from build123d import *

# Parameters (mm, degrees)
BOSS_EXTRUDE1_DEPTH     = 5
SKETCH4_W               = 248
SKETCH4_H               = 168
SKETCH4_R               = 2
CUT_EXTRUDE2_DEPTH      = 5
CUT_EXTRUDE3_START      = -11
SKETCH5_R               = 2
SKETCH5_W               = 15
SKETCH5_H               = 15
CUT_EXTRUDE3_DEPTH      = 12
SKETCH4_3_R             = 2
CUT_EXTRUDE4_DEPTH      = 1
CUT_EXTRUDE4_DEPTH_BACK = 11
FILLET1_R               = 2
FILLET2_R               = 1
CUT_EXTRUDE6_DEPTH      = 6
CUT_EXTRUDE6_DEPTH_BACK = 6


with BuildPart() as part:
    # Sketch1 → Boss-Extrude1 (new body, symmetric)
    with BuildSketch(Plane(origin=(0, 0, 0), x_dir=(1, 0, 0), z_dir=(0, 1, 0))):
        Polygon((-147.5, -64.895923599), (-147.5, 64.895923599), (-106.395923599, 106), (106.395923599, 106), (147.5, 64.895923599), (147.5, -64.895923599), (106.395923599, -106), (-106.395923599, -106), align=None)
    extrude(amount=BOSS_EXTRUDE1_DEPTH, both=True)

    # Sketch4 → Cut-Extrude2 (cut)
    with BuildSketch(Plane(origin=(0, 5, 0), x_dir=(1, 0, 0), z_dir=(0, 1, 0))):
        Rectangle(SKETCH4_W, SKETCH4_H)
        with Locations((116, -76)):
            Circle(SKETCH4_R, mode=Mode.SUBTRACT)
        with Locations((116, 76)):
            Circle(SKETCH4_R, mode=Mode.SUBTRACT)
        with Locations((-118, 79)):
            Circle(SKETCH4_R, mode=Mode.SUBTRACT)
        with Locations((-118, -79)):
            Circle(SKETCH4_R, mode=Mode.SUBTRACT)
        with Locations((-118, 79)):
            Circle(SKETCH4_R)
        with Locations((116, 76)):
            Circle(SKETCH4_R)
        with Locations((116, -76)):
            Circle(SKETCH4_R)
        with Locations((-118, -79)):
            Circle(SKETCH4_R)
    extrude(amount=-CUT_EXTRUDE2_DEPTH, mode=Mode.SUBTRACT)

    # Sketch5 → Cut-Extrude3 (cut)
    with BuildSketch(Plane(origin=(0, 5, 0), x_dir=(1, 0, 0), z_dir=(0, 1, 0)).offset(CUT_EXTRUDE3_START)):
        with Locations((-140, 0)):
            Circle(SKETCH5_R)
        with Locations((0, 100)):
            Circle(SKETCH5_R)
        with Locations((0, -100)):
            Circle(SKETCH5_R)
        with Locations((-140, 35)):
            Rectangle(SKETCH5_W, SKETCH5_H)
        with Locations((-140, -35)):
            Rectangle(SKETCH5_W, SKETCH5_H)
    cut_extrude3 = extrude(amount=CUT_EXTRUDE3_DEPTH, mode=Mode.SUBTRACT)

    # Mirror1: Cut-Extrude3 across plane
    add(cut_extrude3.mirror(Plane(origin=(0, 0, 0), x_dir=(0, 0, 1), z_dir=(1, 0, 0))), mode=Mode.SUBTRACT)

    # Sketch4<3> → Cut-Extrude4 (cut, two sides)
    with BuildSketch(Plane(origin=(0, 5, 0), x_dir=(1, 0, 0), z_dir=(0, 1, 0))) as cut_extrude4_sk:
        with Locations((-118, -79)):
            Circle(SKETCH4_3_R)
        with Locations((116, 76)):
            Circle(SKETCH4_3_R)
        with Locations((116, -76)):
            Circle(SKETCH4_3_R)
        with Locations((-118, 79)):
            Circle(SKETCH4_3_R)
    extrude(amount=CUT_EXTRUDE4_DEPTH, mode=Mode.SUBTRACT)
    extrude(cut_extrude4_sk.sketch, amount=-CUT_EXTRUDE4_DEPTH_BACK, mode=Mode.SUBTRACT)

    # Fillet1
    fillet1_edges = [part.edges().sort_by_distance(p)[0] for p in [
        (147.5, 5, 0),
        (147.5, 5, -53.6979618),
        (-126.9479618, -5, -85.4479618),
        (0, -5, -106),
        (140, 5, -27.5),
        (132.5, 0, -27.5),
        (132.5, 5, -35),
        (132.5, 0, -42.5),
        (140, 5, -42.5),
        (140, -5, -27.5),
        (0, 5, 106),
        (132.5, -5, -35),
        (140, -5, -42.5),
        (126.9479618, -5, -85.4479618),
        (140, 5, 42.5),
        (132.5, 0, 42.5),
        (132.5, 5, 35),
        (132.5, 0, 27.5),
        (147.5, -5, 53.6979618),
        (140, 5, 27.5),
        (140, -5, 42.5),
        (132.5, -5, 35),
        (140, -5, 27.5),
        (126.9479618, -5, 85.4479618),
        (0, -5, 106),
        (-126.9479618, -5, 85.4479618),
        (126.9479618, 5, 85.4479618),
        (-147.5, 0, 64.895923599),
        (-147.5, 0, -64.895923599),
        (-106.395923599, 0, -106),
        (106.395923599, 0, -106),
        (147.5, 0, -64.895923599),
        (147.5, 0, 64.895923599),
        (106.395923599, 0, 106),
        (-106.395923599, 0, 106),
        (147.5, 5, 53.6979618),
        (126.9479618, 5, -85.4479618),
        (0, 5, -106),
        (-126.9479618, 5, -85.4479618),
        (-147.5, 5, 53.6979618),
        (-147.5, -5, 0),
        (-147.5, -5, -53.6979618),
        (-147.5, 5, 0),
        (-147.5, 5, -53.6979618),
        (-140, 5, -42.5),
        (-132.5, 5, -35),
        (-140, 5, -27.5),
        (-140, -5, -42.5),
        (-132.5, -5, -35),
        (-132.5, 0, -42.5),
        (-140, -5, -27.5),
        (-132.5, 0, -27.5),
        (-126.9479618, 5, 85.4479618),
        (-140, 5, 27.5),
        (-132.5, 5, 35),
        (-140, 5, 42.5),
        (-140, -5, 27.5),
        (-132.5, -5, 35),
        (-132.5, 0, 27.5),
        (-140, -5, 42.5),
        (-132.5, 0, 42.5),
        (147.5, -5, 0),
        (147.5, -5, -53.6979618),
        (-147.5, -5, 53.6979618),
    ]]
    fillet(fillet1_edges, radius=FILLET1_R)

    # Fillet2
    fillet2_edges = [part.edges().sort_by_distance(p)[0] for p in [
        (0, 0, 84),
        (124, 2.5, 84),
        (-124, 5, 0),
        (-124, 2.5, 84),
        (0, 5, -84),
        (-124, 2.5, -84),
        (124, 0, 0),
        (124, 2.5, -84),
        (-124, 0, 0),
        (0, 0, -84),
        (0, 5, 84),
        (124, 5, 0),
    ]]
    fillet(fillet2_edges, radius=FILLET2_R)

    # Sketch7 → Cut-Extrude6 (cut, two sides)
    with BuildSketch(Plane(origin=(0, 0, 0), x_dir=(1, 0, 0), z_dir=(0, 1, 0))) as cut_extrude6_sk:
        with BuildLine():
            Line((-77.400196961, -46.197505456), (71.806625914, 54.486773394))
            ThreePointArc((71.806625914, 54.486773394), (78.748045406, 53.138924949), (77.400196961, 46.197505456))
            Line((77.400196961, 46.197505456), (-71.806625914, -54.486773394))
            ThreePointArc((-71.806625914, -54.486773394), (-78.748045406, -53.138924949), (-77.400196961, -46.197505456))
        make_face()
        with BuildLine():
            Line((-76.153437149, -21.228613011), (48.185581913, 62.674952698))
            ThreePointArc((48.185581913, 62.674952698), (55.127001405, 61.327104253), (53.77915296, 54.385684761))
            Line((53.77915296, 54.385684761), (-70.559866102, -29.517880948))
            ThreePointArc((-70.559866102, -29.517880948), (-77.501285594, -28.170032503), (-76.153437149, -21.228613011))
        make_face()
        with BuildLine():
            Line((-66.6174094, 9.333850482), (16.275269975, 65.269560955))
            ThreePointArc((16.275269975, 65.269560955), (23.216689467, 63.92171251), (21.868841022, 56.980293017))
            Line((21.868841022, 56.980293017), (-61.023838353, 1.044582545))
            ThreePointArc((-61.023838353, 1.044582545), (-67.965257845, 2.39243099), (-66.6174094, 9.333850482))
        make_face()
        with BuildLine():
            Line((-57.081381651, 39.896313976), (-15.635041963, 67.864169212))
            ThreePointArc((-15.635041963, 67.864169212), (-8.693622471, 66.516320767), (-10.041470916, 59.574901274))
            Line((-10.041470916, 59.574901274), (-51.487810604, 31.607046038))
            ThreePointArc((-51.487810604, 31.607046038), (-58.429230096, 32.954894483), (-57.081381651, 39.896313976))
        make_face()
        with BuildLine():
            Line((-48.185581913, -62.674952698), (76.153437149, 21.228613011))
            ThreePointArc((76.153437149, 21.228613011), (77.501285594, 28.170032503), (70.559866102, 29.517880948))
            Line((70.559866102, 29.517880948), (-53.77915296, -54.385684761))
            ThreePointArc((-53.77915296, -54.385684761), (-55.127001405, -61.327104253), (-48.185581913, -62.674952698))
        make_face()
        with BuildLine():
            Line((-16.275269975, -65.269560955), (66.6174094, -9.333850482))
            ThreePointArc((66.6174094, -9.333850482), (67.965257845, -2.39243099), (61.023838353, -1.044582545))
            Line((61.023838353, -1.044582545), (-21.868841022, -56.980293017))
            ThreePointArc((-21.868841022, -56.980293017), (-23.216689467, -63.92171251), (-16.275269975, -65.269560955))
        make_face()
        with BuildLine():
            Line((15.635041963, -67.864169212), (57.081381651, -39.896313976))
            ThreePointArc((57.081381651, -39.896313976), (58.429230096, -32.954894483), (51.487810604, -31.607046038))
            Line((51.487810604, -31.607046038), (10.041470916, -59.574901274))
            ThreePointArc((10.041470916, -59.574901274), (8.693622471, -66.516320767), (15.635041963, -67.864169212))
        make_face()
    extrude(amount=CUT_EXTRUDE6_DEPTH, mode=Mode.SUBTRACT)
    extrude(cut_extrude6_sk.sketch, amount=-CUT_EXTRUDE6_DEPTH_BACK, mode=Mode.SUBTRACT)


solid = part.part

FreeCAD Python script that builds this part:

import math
import FreeCAD as App
import Part
import Sketcher

V = App.Vector
Q = App.Units.Quantity


def edges_at(feature, points):
    """Names of the edges that pass closest to the given points."""
    edges = feature.Shape.Edges
    near = lambda p: min(range(len(edges)), key=lambda i: edges[i].distToShape(Part.Vertex(*p))[0])
    return sorted({f"Edge{near(p) + 1}" for p in points})

doc = App.newDocument("Part")
body = doc.addObject("PartDesign::Body", "Body")

sketch1 = doc.addObject("Sketcher::SketchObject", "Sketch")
body.addObject(sketch1)
sketch1.AttachmentSupport = (doc.XZ_Plane, [""])
sketch1.MapMode = "FlatFace"
sketch1.addGeometry([
    Part.LineSegment(V(-148, -65, 0), V(-148, 65, 0)),
    Part.LineSegment(V(-148, 65, 0), V(-106, 106, 0)),
    Part.LineSegment(V(-106, 106, 0), V(106, 106, 0)),
    Part.LineSegment(V(106, 106, 0), V(148, 65, 0)),
    Part.LineSegment(V(148, 65, 0), V(148, -65, 0)),
    Part.LineSegment(V(148, -65, 0), V(106, -106, 0)),
    Part.LineSegment(V(106, -106, 0), V(-106, -106, 0)),
    Part.LineSegment(V(-106, -106, 0), V(-148, -65, 0)),
], False)
sketch1.addConstraint([
    Sketcher.Constraint("Coincident", 0, 2, 1, 1),
    Sketcher.Constraint("Coincident", 1, 2, 2, 1),
    Sketcher.Constraint("Coincident", 2, 2, 3, 1),
    Sketcher.Constraint("Coincident", 3, 2, 4, 1),
    Sketcher.Constraint("Coincident", 4, 2, 5, 1),
    Sketcher.Constraint("Coincident", 5, 2, 6, 1),
    Sketcher.Constraint("Coincident", 6, 2, 7, 1),
    Sketcher.Constraint("Coincident", 7, 2, 0, 1),
    Sketcher.Constraint("Vertical", 0),
    Sketcher.Constraint("Horizontal", 2),
    Sketcher.Constraint("Vertical", 4),
    Sketcher.Constraint("Horizontal", 6),
    Sketcher.Constraint("Symmetric", 0, 2, 4, 2, -1, 1),
    Sketcher.Constraint("Symmetric", 1, 2, 5, 2, -1, 1),
    Sketcher.Constraint("Perpendicular", 1, 3),
    Sketcher.Constraint("Perpendicular", 5, 7),
    Sketcher.Constraint("Horizontal", 0, 2, 3, 2),
    Sketcher.Constraint("Horizontal", 4, 2, 7, 2),
    Sketcher.Constraint("Vertical", 2, 2, 5, 2),
    Sketcher.Constraint("DistanceY", -1, 1, 1, 2, Q("106 mm")),
    Sketcher.Constraint("DistanceX", 0, 2, 3, 2, Q("295 mm")),
    Sketcher.Constraint("DistanceX", 2, 1, 2, 2, Q("212.791847 mm")),
])
pad1 = doc.addObject("PartDesign::Pad", "Pad")
body.addObject(pad1)
pad1.Profile = sketch1
pad1.Length = 10
pad1.Midplane = True

sketch2 = doc.addObject("Sketcher::SketchObject", "Sketch001")
body.addObject(sketch2)
sketch2.AttachmentSupport = (doc.XZ_Plane, [""])
sketch2.MapMode = "FlatFace"
sketch2.AttachmentOffset = App.Placement(V(0, 0, -5), App.Rotation())
sketch2.addGeometry([
    Part.LineSegment(V(-124, -84, 0), V(-124, 84, 0)),
    Part.LineSegment(V(-124, 84, 0), V(124, 84, 0)),
    Part.LineSegment(V(124, 84, 0), V(124, -84, 0)),
    Part.LineSegment(V(124, -84, 0), V(-124, -84, 0)),
], False)
sketch2.addConstraint([
    Sketcher.Constraint("Coincident", 0, 2, 1, 1),
    Sketcher.Constraint("Coincident", 1, 2, 2, 1),
    Sketcher.Constraint("Coincident", 2, 2, 3, 1),
    Sketcher.Constraint("Coincident", 3, 2, 0, 1),
    Sketcher.Constraint("Vertical", 0),
    Sketcher.Constraint("Horizontal", 1),
    Sketcher.Constraint("Vertical", 2),
    Sketcher.Constraint("Horizontal", 3),
    Sketcher.Constraint("Symmetric", 0, 2, 2, 2, -1, 1),
    Sketcher.Constraint("DistanceX", 1, 1, 1, 2, Q("248 mm")),
    Sketcher.Constraint("DistanceY", 0, 1, 0, 2, Q("168 mm")),
])
pocket1 = doc.addObject("PartDesign::Pocket", "Pocket")
body.addObject(pocket1)
pocket1.Profile = sketch2
pocket1.Length = 5
pocket1.Reversed = True

sketch3 = doc.addObject("Sketcher::SketchObject", "Sketch002")
body.addObject(sketch3)
sketch3.AttachmentSupport = (doc.XZ_Plane, [""])
sketch3.MapMode = "FlatFace"
sketch3.AttachmentOffset = App.Placement(V(0, 0, 6), App.Rotation())
sketch3.addGeometry([
    Part.Circle(V(-140, 0, 0), V(0, 0, 1), 2),
    Part.Circle(V(0, -100, 0), V(0, 0, 1), 2),
    Part.Circle(V(0, 100, 0), V(0, 0, 1), 2),
    Part.LineSegment(V(-147.5, -42.5, 0), V(-147.5, -27.5, 0)),
    Part.LineSegment(V(-147.5, -27.5, 0), V(-132.5, -27.5, 0)),
    Part.LineSegment(V(-132.5, -27.5, 0), V(-132.5, -42.5, 0)),
    Part.LineSegment(V(-132.5, -42.5, 0), V(-147.5, -42.5, 0)),
    Part.LineSegment(V(-147.5, 27.5, 0), V(-147.5, 42.5, 0)),
    Part.LineSegment(V(-147.5, 42.5, 0), V(-132.5, 42.5, 0)),
    Part.LineSegment(V(-132.5, 42.5, 0), V(-132.5, 27.5, 0)),
    Part.LineSegment(V(-132.5, 27.5, 0), V(-147.5, 27.5, 0)),
], False)
sketch3.addConstraint([
    Sketcher.Constraint("Coincident", 3, 2, 4, 1),
    Sketcher.Constraint("Coincident", 4, 2, 5, 1),
    Sketcher.Constraint("Coincident", 5, 2, 6, 1),
    Sketcher.Constraint("Coincident", 6, 2, 3, 1),
    Sketcher.Constraint("Coincident", 7, 2, 8, 1),
    Sketcher.Constraint("Coincident", 8, 2, 9, 1),
    Sketcher.Constraint("Coincident", 9, 2, 10, 1),
    Sketcher.Constraint("Coincident", 10, 2, 7, 1),
    Sketcher.Constraint("Vertical", 3),
    Sketcher.Constraint("Horizontal", 4),
    Sketcher.Constraint("Vertical", 5),
    Sketcher.Constraint("Horizontal", 6),
    Sketcher.Constraint("Vertical", 7),
    Sketcher.Constraint("Horizontal", 8),
    Sketcher.Constraint("Vertical", 9),
    Sketcher.Constraint("Horizontal", 10),
    Sketcher.Constraint("Equal", 0, 1),
    Sketcher.Constraint("Equal", 1, 2),
    Sketcher.Constraint("Symmetric", 1, 3, 2, 3, -1, 1),
    Sketcher.Constraint("Symmetric", 6, 2, 7, 2, -1),
    Sketcher.Constraint("Symmetric", 4, 2, 9, 2, -1),
    Sketcher.Constraint("PointOnObject", 0, 3, -1),
    Sketcher.Constraint("PointOnObject", 1, 3, -2),
    Sketcher.Constraint("Equal", 10, 3),
    Sketcher.Constraint("Diameter", 0, Q("4 mm")),
    Sketcher.Constraint("DistanceX", 4, 1, 4, 2, Q("15 mm")),
    Sketcher.Constraint("DistanceX", 0, 3, -1, 1, Q("140 mm")),
    Sketcher.Constraint("DistanceY", 1, 3, -1, 1, Q("100 mm")),
    Sketcher.Constraint("DistanceY", 3, 2, 7, 2, Q("70 mm")),
    Sketcher.Constraint("DistanceX", 3, 2, -1, 1, Q("147.5 mm")),
])
pocket2 = doc.addObject("PartDesign::Pocket", "Pocket001")
body.addObject(pocket2)
pocket2.Profile = sketch3
pocket2.Length = 12
doc.recompute()

mirrored = doc.addObject("PartDesign::Mirrored", "Mirrored")
body.addObject(mirrored)
mirrored.Originals = [pocket2]
mirrored.MirrorPlane = (doc.YZ_Plane, [""])
body.Tip = mirrored

sketch4 = doc.addObject("Sketcher::SketchObject", "Sketch003")
body.addObject(sketch4)
sketch4.AttachmentSupport = (doc.XZ_Plane, [""])
sketch4.MapMode = "FlatFace"
sketch4.AttachmentOffset = App.Placement(V(0, 0, -5), App.Rotation())
sketch4.addGeometry([
    Part.Circle(V(-118, 79, 0), V(0, 0, 1), 2),
    Part.Circle(V(116, -76, 0), V(0, 0, 1), 2),
    Part.Circle(V(116, 76, 0), V(0, 0, 1), 2),
    Part.Circle(V(-118, -79, 0), V(0, 0, 1), 2),
], False)
sketch4.addConstraint([
    Sketcher.Constraint("Equal", 0, 1),
    Sketcher.Constraint("Equal", 1, 2),
    Sketcher.Constraint("Equal", 2, 3),
    Sketcher.Constraint("Symmetric", 1, 3, 2, 3, -1),
    Sketcher.Constraint("Symmetric", 0, 3, 3, 3, -1),
    Sketcher.Constraint("Diameter", 0, Q("4 mm")),
    Sketcher.Constraint("DistanceX", 0, 3, -1, 1, Q("118 mm")),
    Sketcher.Constraint("DistanceY", -1, 1, 0, 3, Q("79 mm")),
    Sketcher.Constraint("DistanceX", -1, 1, 1, 3, Q("116 mm")),
    Sketcher.Constraint("DistanceY", 1, 3, -1, 1, Q("76 mm")),
])
pocket3 = doc.addObject("PartDesign::Pocket", "Pocket002")
body.addObject(pocket3)
pocket3.Profile = sketch4
pocket3.Type = "ThroughAll"
pocket3.Midplane = True
doc.recompute()

fillet = doc.addObject("PartDesign::Fillet", "Fillet")
body.addObject(fillet)
fillet.Base = (pocket3, edges_at(pocket3, [
    (147.5, 5, 0),
    (147.5, 5, -53.698),
    (-126.948, -5, -85.448),
    (0, -5, -106),
    (140, 5, -27.5),
    (132.5, 0, -27.5),
    (132.5, 5, -35),
    (132.5, 0, -42.5),
    (140, 5, -42.5),
    (140, -5, -27.5),
    (0, 5, 106),
    (132.5, -5, -35),
    (140, -5, -42.5),
    (126.948, -5, -85.448),
    (140, 5, 42.5),
    (132.5, 0, 42.5),
    (132.5, 5, 35),
    (132.5, 0, 27.5),
    (147.5, -5, 53.698),
    (140, 5, 27.5),
    (140, -5, 42.5),
    (132.5, -5, 35),
    (140, -5, 27.5),
    (126.948, -5, 85.448),
    (0, -5, 106),
    (-126.948, -5, 85.448),
    (126.948, 5, 85.448),
    (-147.5, 0, 64.896),
    (-147.5, 0, -64.896),
    (-106.396, 0, -106),
    (106.396, 0, -106),
    (147.5, 0, -64.896),
    (147.5, 0, 64.896),
    (106.396, 0, 106),
    (-106.396, 0, 106),
    (147.5, 5, 53.698),
    (126.948, 5, -85.448),
    (0, 5, -106),
    (-126.948, 5, -85.448),
    (-147.5, 5, 53.698),
    (-147.5, -5, 0),
    (-147.5, -5, -53.698),
    (-147.5, 5, 0),
    (-147.5, 5, -53.698),
    (-140, 5, -42.5),
    (-132.5, 5, -35),
    (-140, 5, -27.5),
    (-140, -5, -42.5),
    (-132.5, -5, -35),
    (-132.5, 0, -42.5),
    (-140, -5, -27.5),
    (-132.5, 0, -27.5),
    (-126.948, 5, 85.448),
    (-140, 5, 27.5),
    (-132.5, 5, 35),
    (-140, 5, 42.5),
    (-140, -5, 27.5),
    (-132.5, -5, 35),
    (-132.5, 0, 27.5),
    (-140, -5, 42.5),
    (-132.5, 0, 42.5),
    (147.5, -5, 0),
    (147.5, -5, -53.698),
    (-147.5, -5, 53.698),
]))
fillet.Radius = 2
doc.recompute()

fillet2 = doc.addObject("PartDesign::Fillet", "Fillet001")
body.addObject(fillet2)
fillet2.Base = (fillet, edges_at(fillet, [
    (0, 0, 84),
    (124, 2.5, 84),
    (-124, 5, 0),
    (-124, 2.5, 84),
    (0, 5, -84),
    (-124, 2.5, -84),
    (124, 0, 0),
    (124, 2.5, -84),
    (-124, 0, 0),
    (0, 0, -84),
    (0, 5, 84),
    (124, 5, 0),
]))
fillet2.Radius = 1

sketch5 = doc.addObject("Sketcher::SketchObject", "Sketch004")
body.addObject(sketch5)
sketch5.AttachmentSupport = (doc.XZ_Plane, [""])
sketch5.MapMode = "FlatFace"
sketch5.addGeometry([
    Part.LineSegment(V(72, -54, 0), V(-77, 46, 0)),
    Part.ArcOfCircle(Part.Circle(V(-75, 50, 0), V(0, 0, 1), 5), math.radians(56), math.radians(236)),
    Part.LineSegment(V(-72, 54, 0), V(77, -46, 0)),
    Part.ArcOfCircle(Part.Circle(V(75, -50, 0), V(0, 0, 1), 5), math.radians(-124), math.radians(56)),
    Part.LineSegment(V(48, -63, 0), V(-76, 21, 0)),
    Part.ArcOfCircle(Part.Circle(V(-73, 25, 0), V(0, 0, 1), 5), math.radians(56), math.radians(236)),
    Part.LineSegment(V(-71, 30, 0), V(54, -54, 0)),
    Part.ArcOfCircle(Part.Circle(V(51, -59, 0), V(0, 0, 1), 5), math.radians(-124), math.radians(56)),
    Part.LineSegment(V(16, -65, 0), V(-67, -9, 0)),
    Part.ArcOfCircle(Part.Circle(V(-64, -5, 0), V(0, 0, 1), 5), math.radians(56), math.radians(236)),
    Part.LineSegment(V(-61, -1, 0), V(22, -57, 0)),
    Part.ArcOfCircle(Part.Circle(V(19, -61, 0), V(0, 0, 1), 5), math.radians(-124), math.radians(56)),
    Part.LineSegment(V(-16, -68, 0), V(-57, -40, 0)),
    Part.ArcOfCircle(Part.Circle(V(-54, -36, 0), V(0, 0, 1), 5), math.radians(56), math.radians(236)),
    Part.LineSegment(V(-51, -32, 0), V(-10, -60, 0)),
    Part.ArcOfCircle(Part.Circle(V(-13, -64, 0), V(0, 0, 1), 5), math.radians(-124), math.radians(56)),
    Part.LineSegment(V(-48, 63, 0), V(76, -21, 0)),
    Part.ArcOfCircle(Part.Circle(V(73, -25, 0), V(0, 0, 1), 5), math.radians(-124), math.radians(56)),
    Part.LineSegment(V(71, -30, 0), V(-54, 54, 0)),
    Part.ArcOfCircle(Part.Circle(V(-51, 59, 0), V(0, 0, 1), 5), math.radians(56), math.radians(236)),
    Part.LineSegment(V(-16, 65, 0), V(67, 9, 0)),
    Part.ArcOfCircle(Part.Circle(V(64, 5, 0), V(0, 0, 1), 5), math.radians(-124), math.radians(56)),
    Part.LineSegment(V(61, 1, 0), V(-22, 57, 0)),
    Part.ArcOfCircle(Part.Circle(V(-19, 61, 0), V(0, 0, 1), 5), math.radians(56), math.radians(236)),
    Part.LineSegment(V(16, 68, 0), V(57, 40, 0)),
    Part.ArcOfCircle(Part.Circle(V(54, 36, 0), V(0, 0, 1), 5), math.radians(-124), math.radians(56)),
    Part.LineSegment(V(51, 32, 0), V(10, 60, 0)),
    Part.ArcOfCircle(Part.Circle(V(13, 64, 0), V(0, 0, 1), 5), math.radians(56), math.radians(236)),
], False)
sketch5.addConstraint([
    Sketcher.Constraint("Tangent", 0, 2, 1, 2),
    Sketcher.Constraint("Tangent", 1, 1, 2, 1),
    Sketcher.Constraint("Tangent", 2, 2, 3, 2),
    Sketcher.Constraint("Tangent", 3, 1, 0, 1),
    Sketcher.Constraint("Tangent", 4, 2, 5, 2),
    Sketcher.Constraint("Tangent", 5, 1, 6, 1),
    Sketcher.Constraint("Tangent", 6, 2, 7, 2),
    Sketcher.Constraint("Tangent", 7, 1, 4, 1),
    Sketcher.Constraint("Tangent", 8, 2, 9, 2),
    Sketcher.Constraint("Tangent", 9, 1, 10, 1),
    Sketcher.Constraint("Tangent", 10, 2, 11, 2),
    Sketcher.Constraint("Tangent", 11, 1, 8, 1),
    Sketcher.Constraint("Tangent", 12, 2, 13, 2),
    Sketcher.Constraint("Tangent", 13, 1, 14, 1),
    Sketcher.Constraint("Tangent", 14, 2, 15, 2),
    Sketcher.Constraint("Tangent", 15, 1, 12, 1),
    Sketcher.Constraint("Tangent", 16, 2, 17, 2),
    Sketcher.Constraint("Tangent", 17, 1, 18, 1),
    Sketcher.Constraint("Tangent", 18, 2, 19, 2),
    Sketcher.Constraint("Tangent", 19, 1, 16, 1),
    Sketcher.Constraint("Tangent", 20, 2, 21, 2),
    Sketcher.Constraint("Tangent", 21, 1, 22, 1),
    Sketcher.Constraint("Tangent", 22, 2, 23, 2),
    Sketcher.Constraint("Tangent", 23, 1, 20, 1),
    Sketcher.Constraint("Tangent", 24, 2, 25, 2),
    Sketcher.Constraint("Tangent", 25, 1, 26, 1),
    Sketcher.Constraint("Tangent", 26, 2, 27, 2),
    Sketcher.Constraint("Tangent", 27, 1, 24, 1),
    Sketcher.Constraint("Equal", 1, 3),
    Sketcher.Constraint("Equal", 3, 5),
    Sketcher.Constraint("Equal", 5, 7),
    Sketcher.Constraint("Equal", 7, 9),
    Sketcher.Constraint("Equal", 9, 11),
    Sketcher.Constraint("Equal", 11, 13),
    Sketcher.Constraint("Equal", 13, 15),
    Sketcher.Constraint("Equal", 15, 17),
    Sketcher.Constraint("Equal", 17, 19),
    Sketcher.Constraint("Equal", 19, 21),
    Sketcher.Constraint("Equal", 21, 23),
    Sketcher.Constraint("Equal", 23, 25),
    Sketcher.Constraint("Equal", 25, 27),
    Sketcher.Constraint("Symmetric", 1, 3, 3, 3, -1, 1),
    Sketcher.Constraint("Symmetric", 5, 3, 17, 3, -1, 1),
    Sketcher.Constraint("Symmetric", 7, 3, 19, 3, -1, 1),
    Sketcher.Constraint("Symmetric", 9, 3, 21, 3, -1, 1),
    Sketcher.Constraint("Symmetric", 11, 3, 23, 3, -1, 1),
    Sketcher.Constraint("Symmetric", 13, 3, 25, 3, -1, 1),
    Sketcher.Constraint("Symmetric", 15, 3, 27, 3, -1, 1),
    Sketcher.Constraint("Parallel", 2, 4),
    Sketcher.Constraint("Parallel", 6, 8),
    Sketcher.Constraint("Parallel", 10, 12),
    Sketcher.Constraint("Radius", 1, Q("5 mm")),
    Sketcher.Constraint("Distance", 0, Q("180 mm")),
    Sketcher.Constraint("Distance", 4, Q("150 mm")),
    Sketcher.Constraint("Distance", 8, Q("100 mm")),
    Sketcher.Constraint("Distance", 12, Q("50 mm")),
    Sketcher.Constraint("DistanceY", 13, 3, 19, 3, Q("94.281999 mm")),
    Sketcher.Constraint("DistanceY", 14, 2, -1, 1, Q("59.574901 mm")),
    Sketcher.Constraint("DistanceX", 6, 2, 17, 3, Q("19.577499 mm")),
    Sketcher.Constraint("DistanceX", 4, 2, 9, 1, Q("15.129599 mm")),
    Sketcher.Constraint("DistanceX", 8, 2, 13, 1, Q("15.129599 mm")),
    Sketcher.Constraint("DistanceX", 1, 3, -1, 1, Q("74.603411 mm")),
    Sketcher.Constraint("DistanceY", 8, 2, -1, 1, Q("9.33385 mm")),
])
pocket4 = doc.addObject("PartDesign::Pocket", "Pocket003")
body.addObject(pocket4)
pocket4.Profile = sketch5
pocket4.Type = "ThroughAll"
pocket4.Midplane = True

doc.recompute()
